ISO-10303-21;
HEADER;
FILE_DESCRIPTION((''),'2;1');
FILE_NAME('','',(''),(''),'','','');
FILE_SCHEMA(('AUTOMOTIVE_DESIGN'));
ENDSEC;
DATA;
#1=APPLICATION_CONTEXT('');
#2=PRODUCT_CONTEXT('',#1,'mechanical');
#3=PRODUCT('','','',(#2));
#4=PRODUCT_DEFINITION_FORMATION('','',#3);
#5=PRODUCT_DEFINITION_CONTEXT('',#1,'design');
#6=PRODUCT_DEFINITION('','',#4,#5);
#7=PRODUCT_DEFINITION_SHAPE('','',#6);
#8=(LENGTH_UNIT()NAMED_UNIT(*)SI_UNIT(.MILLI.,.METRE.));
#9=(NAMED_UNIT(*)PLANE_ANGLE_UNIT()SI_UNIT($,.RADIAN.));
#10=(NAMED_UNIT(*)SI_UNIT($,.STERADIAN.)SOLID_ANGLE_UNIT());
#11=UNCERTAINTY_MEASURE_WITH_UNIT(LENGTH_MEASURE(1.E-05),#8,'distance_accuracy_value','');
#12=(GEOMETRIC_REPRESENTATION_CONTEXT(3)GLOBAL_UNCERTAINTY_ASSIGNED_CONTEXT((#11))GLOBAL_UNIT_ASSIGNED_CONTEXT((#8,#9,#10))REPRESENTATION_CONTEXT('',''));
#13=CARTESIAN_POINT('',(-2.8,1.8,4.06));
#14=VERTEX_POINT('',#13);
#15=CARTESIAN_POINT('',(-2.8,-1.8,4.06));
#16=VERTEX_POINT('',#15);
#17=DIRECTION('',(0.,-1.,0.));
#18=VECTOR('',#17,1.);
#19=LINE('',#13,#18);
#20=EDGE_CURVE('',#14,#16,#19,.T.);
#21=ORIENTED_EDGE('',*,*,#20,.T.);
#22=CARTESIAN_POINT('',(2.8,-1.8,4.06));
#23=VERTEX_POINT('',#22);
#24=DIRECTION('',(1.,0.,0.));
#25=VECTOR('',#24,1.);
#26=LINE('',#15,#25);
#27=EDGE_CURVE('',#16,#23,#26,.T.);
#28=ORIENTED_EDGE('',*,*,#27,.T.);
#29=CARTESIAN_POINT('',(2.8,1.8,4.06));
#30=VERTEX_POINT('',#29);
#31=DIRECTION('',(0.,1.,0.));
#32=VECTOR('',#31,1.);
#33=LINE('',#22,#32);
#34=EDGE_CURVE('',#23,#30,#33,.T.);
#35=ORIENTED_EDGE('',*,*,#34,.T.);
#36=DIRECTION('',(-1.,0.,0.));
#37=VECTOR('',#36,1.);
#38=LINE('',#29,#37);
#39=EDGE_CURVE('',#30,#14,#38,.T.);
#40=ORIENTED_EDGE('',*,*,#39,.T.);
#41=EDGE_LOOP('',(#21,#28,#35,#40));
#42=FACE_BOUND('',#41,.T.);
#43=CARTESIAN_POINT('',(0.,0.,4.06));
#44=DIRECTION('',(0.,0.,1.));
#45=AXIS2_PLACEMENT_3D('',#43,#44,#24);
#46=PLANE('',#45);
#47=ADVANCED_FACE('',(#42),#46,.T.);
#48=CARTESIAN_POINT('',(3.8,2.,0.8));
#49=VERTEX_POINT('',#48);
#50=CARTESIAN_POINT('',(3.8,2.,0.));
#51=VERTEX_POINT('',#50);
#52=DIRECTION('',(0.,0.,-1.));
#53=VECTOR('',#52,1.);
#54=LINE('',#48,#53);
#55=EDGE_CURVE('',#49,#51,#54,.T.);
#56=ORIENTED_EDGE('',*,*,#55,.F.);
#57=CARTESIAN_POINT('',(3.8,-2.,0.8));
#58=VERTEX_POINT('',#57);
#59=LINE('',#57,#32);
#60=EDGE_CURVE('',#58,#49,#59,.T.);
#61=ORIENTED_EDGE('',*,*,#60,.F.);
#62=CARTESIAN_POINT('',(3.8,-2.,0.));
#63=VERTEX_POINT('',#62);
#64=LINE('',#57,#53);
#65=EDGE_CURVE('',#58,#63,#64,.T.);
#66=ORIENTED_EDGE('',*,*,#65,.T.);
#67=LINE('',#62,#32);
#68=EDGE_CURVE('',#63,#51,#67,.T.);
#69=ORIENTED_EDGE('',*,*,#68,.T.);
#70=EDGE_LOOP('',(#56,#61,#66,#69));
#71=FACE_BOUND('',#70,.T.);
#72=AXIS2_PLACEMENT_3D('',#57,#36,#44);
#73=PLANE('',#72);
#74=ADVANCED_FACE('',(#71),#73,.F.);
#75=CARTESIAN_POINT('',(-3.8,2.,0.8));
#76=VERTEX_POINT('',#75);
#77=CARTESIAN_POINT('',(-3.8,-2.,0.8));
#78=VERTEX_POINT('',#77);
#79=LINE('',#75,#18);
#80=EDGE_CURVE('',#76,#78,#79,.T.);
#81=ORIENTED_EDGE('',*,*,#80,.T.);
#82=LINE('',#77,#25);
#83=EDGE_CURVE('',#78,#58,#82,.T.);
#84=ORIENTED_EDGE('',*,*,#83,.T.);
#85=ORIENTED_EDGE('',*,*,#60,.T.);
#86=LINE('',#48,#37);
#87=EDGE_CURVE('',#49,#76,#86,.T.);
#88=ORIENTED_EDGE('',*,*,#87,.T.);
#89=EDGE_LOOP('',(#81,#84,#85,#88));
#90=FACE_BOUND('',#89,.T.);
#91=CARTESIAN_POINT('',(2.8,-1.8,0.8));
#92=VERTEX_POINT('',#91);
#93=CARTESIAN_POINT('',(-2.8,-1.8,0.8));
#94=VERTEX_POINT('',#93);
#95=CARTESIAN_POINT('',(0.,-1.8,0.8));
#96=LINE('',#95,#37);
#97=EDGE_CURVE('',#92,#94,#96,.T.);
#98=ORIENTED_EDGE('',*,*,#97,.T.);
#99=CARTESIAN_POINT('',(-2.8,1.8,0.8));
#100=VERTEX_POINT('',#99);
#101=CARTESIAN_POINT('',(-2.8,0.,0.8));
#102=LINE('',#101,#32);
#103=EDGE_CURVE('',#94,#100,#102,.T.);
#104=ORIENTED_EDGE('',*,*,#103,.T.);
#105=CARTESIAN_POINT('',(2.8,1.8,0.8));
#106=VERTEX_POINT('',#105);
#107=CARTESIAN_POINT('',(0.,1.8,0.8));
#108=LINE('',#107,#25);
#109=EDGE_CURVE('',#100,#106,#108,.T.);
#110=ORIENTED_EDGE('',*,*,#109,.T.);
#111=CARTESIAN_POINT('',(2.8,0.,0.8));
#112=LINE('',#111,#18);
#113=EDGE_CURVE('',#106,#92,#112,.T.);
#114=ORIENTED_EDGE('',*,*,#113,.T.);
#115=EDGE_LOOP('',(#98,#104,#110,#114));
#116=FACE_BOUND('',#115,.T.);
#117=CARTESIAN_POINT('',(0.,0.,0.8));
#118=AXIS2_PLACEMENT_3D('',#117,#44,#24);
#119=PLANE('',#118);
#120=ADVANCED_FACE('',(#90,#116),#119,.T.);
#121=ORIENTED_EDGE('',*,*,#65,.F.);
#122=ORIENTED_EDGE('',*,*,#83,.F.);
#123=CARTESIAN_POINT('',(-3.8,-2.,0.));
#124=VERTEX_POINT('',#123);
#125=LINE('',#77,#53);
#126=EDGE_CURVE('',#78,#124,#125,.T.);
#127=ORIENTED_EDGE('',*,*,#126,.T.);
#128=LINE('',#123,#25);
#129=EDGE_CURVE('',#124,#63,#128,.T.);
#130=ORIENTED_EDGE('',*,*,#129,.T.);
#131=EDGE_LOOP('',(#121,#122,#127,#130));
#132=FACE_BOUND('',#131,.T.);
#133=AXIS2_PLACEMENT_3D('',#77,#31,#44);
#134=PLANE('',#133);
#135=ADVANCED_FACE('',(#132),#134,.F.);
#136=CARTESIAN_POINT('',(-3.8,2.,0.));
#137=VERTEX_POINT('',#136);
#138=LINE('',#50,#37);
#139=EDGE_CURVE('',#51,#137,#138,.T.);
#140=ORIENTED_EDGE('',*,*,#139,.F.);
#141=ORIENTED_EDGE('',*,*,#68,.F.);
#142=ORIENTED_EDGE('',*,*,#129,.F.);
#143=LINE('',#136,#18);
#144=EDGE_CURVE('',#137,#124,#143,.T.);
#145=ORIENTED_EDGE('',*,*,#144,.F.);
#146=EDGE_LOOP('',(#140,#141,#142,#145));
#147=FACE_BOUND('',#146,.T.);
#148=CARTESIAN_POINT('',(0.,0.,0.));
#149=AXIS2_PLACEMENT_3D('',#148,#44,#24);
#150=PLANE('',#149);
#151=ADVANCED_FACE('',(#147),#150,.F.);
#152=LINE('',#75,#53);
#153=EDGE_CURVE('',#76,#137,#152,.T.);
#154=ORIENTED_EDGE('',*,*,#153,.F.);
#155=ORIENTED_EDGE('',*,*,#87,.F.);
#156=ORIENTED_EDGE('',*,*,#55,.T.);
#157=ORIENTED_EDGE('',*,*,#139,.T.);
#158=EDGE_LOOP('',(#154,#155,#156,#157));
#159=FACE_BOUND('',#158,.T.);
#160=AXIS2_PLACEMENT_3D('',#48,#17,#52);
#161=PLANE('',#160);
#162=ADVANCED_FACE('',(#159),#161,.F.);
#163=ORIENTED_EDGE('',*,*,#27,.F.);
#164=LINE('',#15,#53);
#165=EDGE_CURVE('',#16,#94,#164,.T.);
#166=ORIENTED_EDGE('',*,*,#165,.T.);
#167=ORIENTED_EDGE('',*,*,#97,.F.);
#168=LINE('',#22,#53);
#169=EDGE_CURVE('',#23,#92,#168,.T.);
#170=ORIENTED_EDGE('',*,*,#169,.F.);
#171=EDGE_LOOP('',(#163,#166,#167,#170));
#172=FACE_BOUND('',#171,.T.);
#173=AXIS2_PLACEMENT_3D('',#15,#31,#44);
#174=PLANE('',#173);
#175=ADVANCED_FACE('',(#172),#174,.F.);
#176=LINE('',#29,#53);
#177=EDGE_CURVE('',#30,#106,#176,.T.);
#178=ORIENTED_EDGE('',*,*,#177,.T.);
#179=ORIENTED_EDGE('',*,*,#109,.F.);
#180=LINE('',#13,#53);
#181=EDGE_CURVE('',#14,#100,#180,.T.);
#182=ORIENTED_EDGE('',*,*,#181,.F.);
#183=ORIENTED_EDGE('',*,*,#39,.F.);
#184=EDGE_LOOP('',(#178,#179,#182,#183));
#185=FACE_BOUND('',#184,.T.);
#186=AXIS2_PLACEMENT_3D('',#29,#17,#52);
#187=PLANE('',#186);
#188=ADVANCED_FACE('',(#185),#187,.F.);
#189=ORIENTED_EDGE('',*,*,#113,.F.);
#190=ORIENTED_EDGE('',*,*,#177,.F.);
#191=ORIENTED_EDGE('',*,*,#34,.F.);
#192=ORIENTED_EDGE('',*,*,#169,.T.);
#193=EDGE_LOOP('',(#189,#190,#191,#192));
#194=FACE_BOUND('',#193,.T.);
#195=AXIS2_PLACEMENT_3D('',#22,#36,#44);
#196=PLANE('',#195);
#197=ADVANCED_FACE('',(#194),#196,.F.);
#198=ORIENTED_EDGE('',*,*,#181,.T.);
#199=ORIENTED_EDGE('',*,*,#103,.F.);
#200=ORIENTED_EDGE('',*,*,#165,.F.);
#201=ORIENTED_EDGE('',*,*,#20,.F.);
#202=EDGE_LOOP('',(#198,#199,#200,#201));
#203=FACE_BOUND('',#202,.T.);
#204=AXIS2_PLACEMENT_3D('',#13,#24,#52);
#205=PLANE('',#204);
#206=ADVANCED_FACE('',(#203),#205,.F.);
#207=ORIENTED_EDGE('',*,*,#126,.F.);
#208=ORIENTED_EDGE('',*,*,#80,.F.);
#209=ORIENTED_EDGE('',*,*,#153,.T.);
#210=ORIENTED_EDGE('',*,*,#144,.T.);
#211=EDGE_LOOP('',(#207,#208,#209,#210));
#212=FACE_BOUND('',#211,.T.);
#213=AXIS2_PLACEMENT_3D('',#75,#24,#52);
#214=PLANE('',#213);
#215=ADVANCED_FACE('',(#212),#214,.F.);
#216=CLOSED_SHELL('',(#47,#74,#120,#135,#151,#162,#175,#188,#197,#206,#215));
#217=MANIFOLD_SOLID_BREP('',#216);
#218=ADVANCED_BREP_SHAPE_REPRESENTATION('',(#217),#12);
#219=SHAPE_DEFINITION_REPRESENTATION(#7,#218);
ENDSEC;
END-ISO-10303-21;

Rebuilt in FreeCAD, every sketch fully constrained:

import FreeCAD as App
import Part
import Sketcher

V = App.Vector
Q = App.Units.Quantity


def add_polygon(sketch, points):
    """Adds a closed chain of lines whose ends are joined by coincident constraints."""
    first, n = sketch.GeometryCount, len(points)
    for a, b in zip(points, points[1:] + points[:1]):
        sketch.addGeometry(Part.LineSegment(App.Vector(*a, 0), App.Vector(*b, 0)), False)
    for i in range(n):
        sketch.addConstraint(Sketcher.Constraint("Coincident", first + i, 2, first + (i + 1) % n, 1))

doc = App.newDocument("Part")
body = doc.addObject("PartDesign::Body", "Body")

# Sketch on XY plane
sketch1 = doc.addObject("Sketcher::SketchObject", "Sketch")
body.addObject(sketch1)
sketch1.AttachmentSupport = (doc.XY_Plane, [""])
sketch1.MapMode = "FlatFace"
add_polygon(sketch1, [(-3.8, 2), (-3.8, -2), (3.8, -2), (3.8, 2)])  # lines 0-3
sketch1.addConstraint([
    Sketcher.Constraint("Vertical", 0),
    Sketcher.Constraint("Horizontal", 1),
    Sketcher.Constraint("Vertical", 2),
    Sketcher.Constraint("Horizontal", 3),
    Sketcher.Constraint("Symmetric", 0, 2, 2, 2, -1, 1),
    Sketcher.Constraint("DistanceY", 0, 2, 0, 1, Q("4 mm")),
    Sketcher.Constraint("DistanceX", 1, 1, 1, 2, Q("7.6 mm")),
])
pad1 = doc.addObject("PartDesign::Pad", "Pad")
body.addObject(pad1)
pad1.Profile = sketch1
pad1.Length = 0.8

# Sketch on XY plane
sketch2 = doc.addObject("Sketcher::SketchObject", "Sketch001")
body.addObject(sketch2)
sketch2.AttachmentSupport = (doc.XY_Plane, [""])
sketch2.MapMode = "FlatFace"
add_polygon(sketch2, [(-2.8, 1.8), (-2.8, -1.8), (2.8, -1.8), (2.8, 1.8)])  # lines 0-3
sketch2.addConstraint([
    Sketcher.Constraint("Vertical", 0),
    Sketcher.Constraint("Horizontal", 1),
    Sketcher.Constraint("Vertical", 2),
    Sketcher.Constraint("Horizontal", 3),
    Sketcher.Constraint("Symmetric", 0, 2, 2, 2, -1, 1),
    Sketcher.Constraint("DistanceX", 1, 1, 1, 2, Q("5.6 mm")),
    Sketcher.Constraint("DistanceY", 0, 2, 0, 1, Q("3.6 mm")),
])
pad2 = doc.addObject("PartDesign::Pad", "Pad001")
body.addObject(pad2)
pad2.Profile = sketch2
pad2.Length = 4.06

doc.recompute()
